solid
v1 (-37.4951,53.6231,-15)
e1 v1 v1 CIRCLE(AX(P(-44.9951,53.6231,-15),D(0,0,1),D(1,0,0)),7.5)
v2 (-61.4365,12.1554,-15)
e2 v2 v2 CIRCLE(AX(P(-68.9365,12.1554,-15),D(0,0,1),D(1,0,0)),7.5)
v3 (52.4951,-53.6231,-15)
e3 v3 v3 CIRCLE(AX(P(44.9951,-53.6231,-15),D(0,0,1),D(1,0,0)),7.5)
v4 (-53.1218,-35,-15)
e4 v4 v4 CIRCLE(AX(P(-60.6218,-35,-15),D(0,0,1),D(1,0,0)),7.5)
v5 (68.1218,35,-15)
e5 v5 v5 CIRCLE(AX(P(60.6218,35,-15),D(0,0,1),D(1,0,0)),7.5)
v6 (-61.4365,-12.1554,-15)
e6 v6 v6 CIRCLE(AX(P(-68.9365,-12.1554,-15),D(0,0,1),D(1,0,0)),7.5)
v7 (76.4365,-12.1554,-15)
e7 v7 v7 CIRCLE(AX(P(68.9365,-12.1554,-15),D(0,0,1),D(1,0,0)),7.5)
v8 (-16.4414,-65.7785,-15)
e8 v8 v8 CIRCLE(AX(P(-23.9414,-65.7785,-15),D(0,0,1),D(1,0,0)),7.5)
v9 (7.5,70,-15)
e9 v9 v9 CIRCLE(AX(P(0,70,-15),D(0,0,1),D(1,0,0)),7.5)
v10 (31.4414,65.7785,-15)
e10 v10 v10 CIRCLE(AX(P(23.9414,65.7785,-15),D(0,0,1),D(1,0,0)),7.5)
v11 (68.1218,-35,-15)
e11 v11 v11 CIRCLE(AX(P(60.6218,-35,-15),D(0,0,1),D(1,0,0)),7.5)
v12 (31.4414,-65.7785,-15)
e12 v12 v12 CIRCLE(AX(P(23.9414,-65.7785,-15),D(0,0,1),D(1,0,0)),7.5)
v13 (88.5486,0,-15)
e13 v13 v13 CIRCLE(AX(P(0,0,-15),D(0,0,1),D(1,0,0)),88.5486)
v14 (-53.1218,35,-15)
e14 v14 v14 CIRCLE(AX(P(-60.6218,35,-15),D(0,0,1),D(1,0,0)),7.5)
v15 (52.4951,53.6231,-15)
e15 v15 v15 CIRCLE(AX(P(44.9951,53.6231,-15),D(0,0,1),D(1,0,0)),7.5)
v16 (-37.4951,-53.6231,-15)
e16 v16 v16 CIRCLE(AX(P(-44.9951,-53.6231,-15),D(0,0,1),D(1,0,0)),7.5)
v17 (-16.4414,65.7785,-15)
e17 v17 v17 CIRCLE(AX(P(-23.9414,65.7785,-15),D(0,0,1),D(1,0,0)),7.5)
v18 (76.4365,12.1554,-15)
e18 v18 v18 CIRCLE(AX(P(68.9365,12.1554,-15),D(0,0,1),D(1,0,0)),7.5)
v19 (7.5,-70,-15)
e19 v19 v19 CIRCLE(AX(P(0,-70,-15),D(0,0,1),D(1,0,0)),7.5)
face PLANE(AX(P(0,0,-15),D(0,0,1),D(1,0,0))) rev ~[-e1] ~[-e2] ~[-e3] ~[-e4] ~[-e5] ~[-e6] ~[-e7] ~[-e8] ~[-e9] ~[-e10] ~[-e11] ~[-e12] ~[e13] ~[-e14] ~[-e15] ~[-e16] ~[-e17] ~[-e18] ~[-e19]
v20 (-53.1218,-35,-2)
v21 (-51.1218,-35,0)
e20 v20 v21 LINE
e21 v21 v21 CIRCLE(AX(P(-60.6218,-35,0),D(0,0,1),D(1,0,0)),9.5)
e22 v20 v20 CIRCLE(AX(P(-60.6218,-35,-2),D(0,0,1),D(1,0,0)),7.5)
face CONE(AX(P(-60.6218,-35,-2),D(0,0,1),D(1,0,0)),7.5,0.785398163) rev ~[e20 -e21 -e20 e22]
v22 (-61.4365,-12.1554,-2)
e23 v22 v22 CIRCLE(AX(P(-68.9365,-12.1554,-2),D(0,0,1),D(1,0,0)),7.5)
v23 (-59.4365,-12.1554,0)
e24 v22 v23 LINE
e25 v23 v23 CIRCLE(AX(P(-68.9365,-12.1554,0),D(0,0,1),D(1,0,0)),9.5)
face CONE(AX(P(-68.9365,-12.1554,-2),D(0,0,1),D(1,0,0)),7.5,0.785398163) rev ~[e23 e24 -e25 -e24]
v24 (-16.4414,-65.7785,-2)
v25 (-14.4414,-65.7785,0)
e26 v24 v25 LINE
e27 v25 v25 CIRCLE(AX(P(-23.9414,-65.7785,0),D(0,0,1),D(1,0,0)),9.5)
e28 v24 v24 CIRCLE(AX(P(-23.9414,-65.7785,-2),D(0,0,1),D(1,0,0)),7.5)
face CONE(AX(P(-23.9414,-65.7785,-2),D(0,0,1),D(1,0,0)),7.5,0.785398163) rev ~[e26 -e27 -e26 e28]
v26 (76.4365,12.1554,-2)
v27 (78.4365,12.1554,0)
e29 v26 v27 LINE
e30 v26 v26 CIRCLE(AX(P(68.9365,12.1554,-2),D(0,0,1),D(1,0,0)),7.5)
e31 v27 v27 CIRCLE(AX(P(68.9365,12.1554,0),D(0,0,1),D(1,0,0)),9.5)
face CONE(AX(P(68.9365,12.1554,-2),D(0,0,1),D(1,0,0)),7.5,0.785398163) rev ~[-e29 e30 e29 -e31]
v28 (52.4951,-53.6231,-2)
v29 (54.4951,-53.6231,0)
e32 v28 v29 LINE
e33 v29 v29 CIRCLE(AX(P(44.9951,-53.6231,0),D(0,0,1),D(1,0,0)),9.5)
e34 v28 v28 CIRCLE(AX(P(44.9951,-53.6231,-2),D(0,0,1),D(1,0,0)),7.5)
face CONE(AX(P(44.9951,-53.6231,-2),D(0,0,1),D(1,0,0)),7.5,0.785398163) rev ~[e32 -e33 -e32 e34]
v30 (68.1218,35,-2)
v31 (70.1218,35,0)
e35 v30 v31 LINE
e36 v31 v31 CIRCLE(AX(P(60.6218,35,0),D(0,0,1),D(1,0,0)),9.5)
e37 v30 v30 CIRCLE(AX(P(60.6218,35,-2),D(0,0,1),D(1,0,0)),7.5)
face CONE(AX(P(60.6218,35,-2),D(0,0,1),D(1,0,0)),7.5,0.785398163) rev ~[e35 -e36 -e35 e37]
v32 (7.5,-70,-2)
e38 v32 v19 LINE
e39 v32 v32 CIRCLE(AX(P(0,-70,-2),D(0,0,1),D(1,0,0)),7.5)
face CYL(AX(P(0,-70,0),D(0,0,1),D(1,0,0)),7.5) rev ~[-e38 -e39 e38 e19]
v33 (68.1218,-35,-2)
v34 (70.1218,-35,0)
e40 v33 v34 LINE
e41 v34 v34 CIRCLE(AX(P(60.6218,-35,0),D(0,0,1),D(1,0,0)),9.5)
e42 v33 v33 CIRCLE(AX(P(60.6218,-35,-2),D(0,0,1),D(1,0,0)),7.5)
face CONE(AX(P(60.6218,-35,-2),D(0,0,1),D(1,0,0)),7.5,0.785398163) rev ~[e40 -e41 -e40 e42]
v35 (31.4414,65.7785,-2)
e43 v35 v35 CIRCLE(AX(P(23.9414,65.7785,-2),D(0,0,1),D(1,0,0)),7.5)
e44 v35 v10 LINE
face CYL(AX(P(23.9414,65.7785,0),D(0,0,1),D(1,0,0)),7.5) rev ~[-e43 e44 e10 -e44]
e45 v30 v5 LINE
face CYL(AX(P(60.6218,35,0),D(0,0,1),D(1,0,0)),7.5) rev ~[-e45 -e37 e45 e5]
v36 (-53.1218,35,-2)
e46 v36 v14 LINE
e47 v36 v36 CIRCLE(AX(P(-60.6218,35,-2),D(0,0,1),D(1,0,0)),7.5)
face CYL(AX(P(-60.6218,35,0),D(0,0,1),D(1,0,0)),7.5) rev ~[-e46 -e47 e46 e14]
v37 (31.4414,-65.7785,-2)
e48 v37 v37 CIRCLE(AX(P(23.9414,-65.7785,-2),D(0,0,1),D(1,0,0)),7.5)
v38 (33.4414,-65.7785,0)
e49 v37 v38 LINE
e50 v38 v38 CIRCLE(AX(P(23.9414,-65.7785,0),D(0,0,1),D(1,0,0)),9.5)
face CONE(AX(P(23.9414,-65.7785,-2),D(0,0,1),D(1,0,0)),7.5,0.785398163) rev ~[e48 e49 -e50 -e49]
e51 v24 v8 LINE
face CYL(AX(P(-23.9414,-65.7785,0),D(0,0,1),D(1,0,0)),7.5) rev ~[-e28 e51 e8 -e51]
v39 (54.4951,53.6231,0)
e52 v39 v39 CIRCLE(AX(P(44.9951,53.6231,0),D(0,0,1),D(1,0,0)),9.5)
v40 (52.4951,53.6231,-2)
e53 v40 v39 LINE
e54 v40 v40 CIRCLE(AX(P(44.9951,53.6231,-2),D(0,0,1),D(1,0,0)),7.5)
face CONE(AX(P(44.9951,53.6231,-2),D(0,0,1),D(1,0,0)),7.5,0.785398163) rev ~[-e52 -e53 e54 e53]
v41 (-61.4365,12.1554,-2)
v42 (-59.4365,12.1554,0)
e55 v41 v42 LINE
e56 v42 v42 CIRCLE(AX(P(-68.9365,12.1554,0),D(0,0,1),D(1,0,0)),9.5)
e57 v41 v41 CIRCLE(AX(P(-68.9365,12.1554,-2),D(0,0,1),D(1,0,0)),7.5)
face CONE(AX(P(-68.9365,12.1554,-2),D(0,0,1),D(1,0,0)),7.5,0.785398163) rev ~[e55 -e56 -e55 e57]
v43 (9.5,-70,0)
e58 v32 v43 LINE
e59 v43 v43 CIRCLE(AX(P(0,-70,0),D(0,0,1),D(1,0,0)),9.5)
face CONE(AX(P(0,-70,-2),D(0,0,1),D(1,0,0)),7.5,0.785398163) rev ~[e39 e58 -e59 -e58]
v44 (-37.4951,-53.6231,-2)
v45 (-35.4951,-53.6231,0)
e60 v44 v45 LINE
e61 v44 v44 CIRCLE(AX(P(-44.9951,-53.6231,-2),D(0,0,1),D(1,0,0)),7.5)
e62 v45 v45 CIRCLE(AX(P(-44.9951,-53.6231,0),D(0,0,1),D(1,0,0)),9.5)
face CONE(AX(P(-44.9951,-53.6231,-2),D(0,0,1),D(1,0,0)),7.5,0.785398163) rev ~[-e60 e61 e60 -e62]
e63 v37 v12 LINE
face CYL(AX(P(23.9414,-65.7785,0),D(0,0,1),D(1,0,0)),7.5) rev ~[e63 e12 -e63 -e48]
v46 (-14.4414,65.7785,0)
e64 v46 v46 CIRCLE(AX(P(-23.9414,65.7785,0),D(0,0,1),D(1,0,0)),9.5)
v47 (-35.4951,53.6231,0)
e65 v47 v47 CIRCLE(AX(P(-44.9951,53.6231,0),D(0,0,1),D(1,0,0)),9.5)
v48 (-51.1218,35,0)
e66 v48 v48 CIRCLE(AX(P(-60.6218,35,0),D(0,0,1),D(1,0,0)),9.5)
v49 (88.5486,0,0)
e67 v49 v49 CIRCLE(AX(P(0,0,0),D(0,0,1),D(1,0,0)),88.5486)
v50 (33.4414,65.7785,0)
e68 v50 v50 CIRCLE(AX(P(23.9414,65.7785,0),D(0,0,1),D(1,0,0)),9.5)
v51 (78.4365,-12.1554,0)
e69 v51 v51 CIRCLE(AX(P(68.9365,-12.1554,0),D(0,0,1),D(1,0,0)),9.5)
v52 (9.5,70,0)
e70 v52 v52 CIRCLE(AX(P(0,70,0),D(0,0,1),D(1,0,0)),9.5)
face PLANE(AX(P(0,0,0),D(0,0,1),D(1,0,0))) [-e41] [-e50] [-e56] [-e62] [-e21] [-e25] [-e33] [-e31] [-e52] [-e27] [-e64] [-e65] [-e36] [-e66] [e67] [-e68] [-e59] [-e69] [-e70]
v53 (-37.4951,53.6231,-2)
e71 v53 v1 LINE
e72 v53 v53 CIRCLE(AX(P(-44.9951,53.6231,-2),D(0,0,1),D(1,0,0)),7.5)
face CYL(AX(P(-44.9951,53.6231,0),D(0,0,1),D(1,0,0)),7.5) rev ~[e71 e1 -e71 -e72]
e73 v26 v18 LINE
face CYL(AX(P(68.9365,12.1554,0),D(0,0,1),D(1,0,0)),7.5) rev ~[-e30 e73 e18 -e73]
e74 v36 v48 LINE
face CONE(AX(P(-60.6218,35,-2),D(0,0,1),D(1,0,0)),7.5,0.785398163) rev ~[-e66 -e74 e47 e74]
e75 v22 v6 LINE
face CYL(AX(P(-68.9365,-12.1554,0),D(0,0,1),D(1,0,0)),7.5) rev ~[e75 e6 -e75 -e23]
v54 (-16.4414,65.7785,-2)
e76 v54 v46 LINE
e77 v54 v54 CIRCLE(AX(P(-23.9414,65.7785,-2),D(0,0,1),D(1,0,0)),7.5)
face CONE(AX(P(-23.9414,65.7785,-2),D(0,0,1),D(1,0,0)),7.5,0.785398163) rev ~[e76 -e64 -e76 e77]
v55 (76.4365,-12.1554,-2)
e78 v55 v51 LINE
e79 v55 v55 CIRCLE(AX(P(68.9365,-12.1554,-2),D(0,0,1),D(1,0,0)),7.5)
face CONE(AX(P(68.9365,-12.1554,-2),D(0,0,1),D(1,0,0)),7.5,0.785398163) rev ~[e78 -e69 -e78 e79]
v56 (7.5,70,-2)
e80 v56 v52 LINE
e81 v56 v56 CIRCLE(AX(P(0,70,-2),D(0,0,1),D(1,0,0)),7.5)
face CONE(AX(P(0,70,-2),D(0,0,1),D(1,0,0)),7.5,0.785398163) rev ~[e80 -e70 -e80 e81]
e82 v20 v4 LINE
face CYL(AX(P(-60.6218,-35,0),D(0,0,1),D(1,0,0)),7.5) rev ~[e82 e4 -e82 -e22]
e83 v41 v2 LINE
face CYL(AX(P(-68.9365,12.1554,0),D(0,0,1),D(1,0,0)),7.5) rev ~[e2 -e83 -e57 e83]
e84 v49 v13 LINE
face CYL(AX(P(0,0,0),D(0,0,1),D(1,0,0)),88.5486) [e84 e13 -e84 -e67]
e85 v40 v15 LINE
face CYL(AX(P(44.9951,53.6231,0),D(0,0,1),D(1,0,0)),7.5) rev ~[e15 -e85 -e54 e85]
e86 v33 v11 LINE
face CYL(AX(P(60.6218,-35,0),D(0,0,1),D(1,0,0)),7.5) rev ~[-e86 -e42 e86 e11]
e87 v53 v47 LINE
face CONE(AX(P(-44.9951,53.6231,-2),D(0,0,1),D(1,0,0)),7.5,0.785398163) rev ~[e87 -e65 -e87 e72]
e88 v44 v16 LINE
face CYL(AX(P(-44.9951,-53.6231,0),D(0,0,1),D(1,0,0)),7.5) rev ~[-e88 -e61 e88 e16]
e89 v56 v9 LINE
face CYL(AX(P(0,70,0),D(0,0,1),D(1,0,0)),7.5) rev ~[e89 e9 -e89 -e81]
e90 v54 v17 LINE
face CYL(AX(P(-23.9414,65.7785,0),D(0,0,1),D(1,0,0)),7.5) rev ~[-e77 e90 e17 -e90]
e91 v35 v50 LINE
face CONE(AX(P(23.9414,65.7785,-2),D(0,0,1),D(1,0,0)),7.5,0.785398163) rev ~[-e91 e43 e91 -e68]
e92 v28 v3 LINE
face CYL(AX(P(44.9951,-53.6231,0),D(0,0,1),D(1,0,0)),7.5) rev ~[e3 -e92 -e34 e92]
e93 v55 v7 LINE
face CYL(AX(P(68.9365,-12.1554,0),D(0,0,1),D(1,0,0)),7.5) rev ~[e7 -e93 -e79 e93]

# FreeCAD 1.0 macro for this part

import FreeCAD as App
import Part
import Sketcher
Q = App.Units.Quantity


def edges_at(feature, points):
    """Names of the edges that pass closest to the given points."""
    edges = feature.Shape.Edges
    near = lambda p: min(range(len(edges)), key=lambda i: edges[i].distToShape(Part.Vertex(*p))[0])
    return sorted({f"Edge{near(p) + 1}" for p in points})

doc = App.newDocument("Part")
params = doc.addObject("Spreadsheet::Sheet", "Params")
for row, (alias, value) in enumerate([
    ("sketch1_diameter", "15 mm"),
    ("pad1_length", "15 mm"),
    ("chamfer_size", "2 mm"),
], start=1):
    params.set(f"A{row}", alias)
    params.set(f"B{row}", "=" + value)
    params.setAlias(f"B{row}", alias)

body = doc.addObject("PartDesign::Body", "Body")

sketch1 = doc.addObject("Sketcher::SketchObject", "Sketch")
body.addObject(sketch1)
sketch1.AttachmentSupport = (doc.XY_Plane, [""])
sketch1.MapMode = "FlatFace"
sketch1.addGeometry([
    Part.Circle(App.Vector(0, 0, 0), App.Vector(0, 0, 1), 88.5486),
    Part.Circle(App.Vector(-44.9951, -53.6231, 0), App.Vector(0, 0, 1), 7.5),
    Part.Circle(App.Vector(-23.9414, -65.7785, 0), App.Vector(0, 0, 1), 7.5),
    Part.Circle(App.Vector(-60.6218, -35, 0), App.Vector(0, 0, 1), 7.5),
    Part.Circle(App.Vector(-68.9365, -12.1554, 0), App.Vector(0, 0, 1), 7.5),
    Part.Circle(App.Vector(0, -70, 0), App.Vector(0, 0, 1), 7.5),
    Part.Circle(App.Vector(23.9414, -65.7785, 0), App.Vector(0, 0, 1), 7.5),
    Part.Circle(App.Vector(44.9951, -53.6231, 0), App.Vector(0, 0, 1), 7.5),
    Part.Circle(App.Vector(60.6218, -35, 0), App.Vector(0, 0, 1), 7.5),
    Part.Circle(App.Vector(68.9365, -12.1554, 0), App.Vector(0, 0, 1), 7.5),
    Part.Circle(App.Vector(-68.9365, 12.1554, 0), App.Vector(0, 0, 1), 7.5),
    Part.Circle(App.Vector(-60.6218, 35, 0), App.Vector(0, 0, 1), 7.5),
    Part.Circle(App.Vector(-44.9951, 53.6231, 0), App.Vector(0, 0, 1), 7.5),
    Part.Circle(App.Vector(-23.9414, 65.7785, 0), App.Vector(0, 0, 1), 7.5),
    Part.Circle(App.Vector(68.9365, 12.1554, 0), App.Vector(0, 0, 1), 7.5),
    Part.Circle(App.Vector(60.6218, 35, 0), App.Vector(0, 0, 1), 7.5),
    Part.Circle(App.Vector(23.9414, 65.7785, 0), App.Vector(0, 0, 1), 7.5),
    Part.Circle(App.Vector(0, 70, 0), App.Vector(0, 0, 1), 7.5),
    Part.Circle(App.Vector(44.9951, 53.6231, 0), App.Vector(0, 0, 1), 7.5),
], False)
sketch1.addConstraint([
    Sketcher.Constraint("Coincident", 0, 3, -1, 1),
    Sketcher.Constraint("Equal", 1, 2),
    Sketcher.Constraint("Equal", 2, 3),
    Sketcher.Constraint("Equal", 3, 4),
    Sketcher.Constraint("Equal", 4, 5),
    Sketcher.Constraint("Equal", 5, 6),
    Sketcher.Constraint("Equal", 6, 7),
    Sketcher.Constraint("Equal", 7, 8),
    Sketcher.Constraint("Equal", 8, 9),
    Sketcher.Constraint("Equal", 9, 10),
    Sketcher.Constraint("Equal", 10, 11),
    Sketcher.Constraint("Equal", 11, 12),
    Sketcher.Constraint("Equal", 12, 13),
    Sketcher.Constraint("Equal", 13, 14),
    Sketcher.Constraint("Equal", 14, 15),
    Sketcher.Constraint("Equal", 15, 16),
    Sketcher.Constraint("Equal", 16, 17),
    Sketcher.Constraint("Equal", 17, 18),
    Sketcher.Constraint("Symmetric", 9, 3, 10, 3, -1, 1),
    Sketcher.Constraint("Symmetric", 8, 3, 11, 3, -1, 1),
    Sketcher.Constraint("Symmetric", 7, 3, 12, 3, -1, 1),
    Sketcher.Constraint("Symmetric", 6, 3, 13, 3, -1, 1),
    Sketcher.Constraint("Symmetric", 4, 3, 14, 3, -1, 1),
    Sketcher.Constraint("Symmetric", 3, 3, 15, 3, -1, 1),
    Sketcher.Constraint("Symmetric", 2, 3, 16, 3, -1, 1),
    Sketcher.Constraint("Symmetric", 5, 3, 17, 3, -1, 1),
    Sketcher.Constraint("Symmetric", 1, 3, 18, 3, -1, 1),
    Sketcher.Constraint("Symmetric", 2, 3, 6, 3, -2),
    Sketcher.Constraint("Symmetric", 1, 3, 7, 3, -2),
    Sketcher.Constraint("Symmetric", 3, 3, 8, 3, -2),
    Sketcher.Constraint("Symmetric", 4, 3, 9, 3, -2),
    Sketcher.Constraint("PointOnObject", 5, 3, -2),
    Sketcher.Constraint("Diameter", 1, Q("15 mm")),
    Sketcher.Constraint("DistanceY", 3, 3, -1, 1, Q("35 mm")),
    Sketcher.Constraint("DistanceY", 5, 3, -1, 1, Q("70 mm")),
    Sketcher.Constraint("Diameter", 0, Q("177.0972 mm")),
    Sketcher.Constraint("DistanceX", 1, 3, -1, 1, Q("44.995 mm")),
    Sketcher.Constraint("DistanceY", 1, 3, -1, 1, Q("53.623 mm")),
    Sketcher.Constraint("DistanceX", 4, 3, 2, 3, Q("44.995 mm")),
    Sketcher.Constraint("DistanceY", 2, 3, 4, 3, Q("53.623 mm")),
    Sketcher.Constraint("DistanceY", 2, 3, 10, 3, Q("77.934 mm")),
    Sketcher.Constraint("DistanceX", 2, 3, -1, 1, Q("23.9414 mm")),
    Sketcher.Constraint("DistanceX", 3, 3, -1, 1, Q("60.6218 mm")),
])
sketch1.setExpression("Constraints[32]", "Params.sketch1_diameter")
pad1 = doc.addObject("PartDesign::Pad", "Pad")
body.addObject(pad1)
pad1.Profile = sketch1
pad1.setExpression("Length", "Params.pad1_length")
pad1.Reversed = True
doc.recompute()

chamfer = doc.addObject("PartDesign::Chamfer", "Chamfer")
body.addObject(chamfer)
chamfer.Base = (pad1, edges_at(pad1, [
    (-31.441, -65.778, 0),
    (-7.5, -70, 0),
    (16.441, -65.778, 0),
    (37.495, -53.623, 0),
    (53.122, -35, 0),
    (61.437, -12.155, 0),
    (61.437, 12.155, 0),
    (53.122, 35, 0),
    (37.495, 53.623, 0),
    (16.441, 65.778, 0),
    (-7.5, 70, 0),
    (-31.441, 65.778, 0),
    (-52.495, 53.623, 0),
    (-68.122, 35, 0),
    (-76.436, 12.155, 0),
    (-76.436, -12.155, 0),
    (-68.122, -35, 0),
    (-52.495, -53.623, 0),
]))
chamfer.setExpression("Size", "Params.chamfer_size")

doc.recompute()
